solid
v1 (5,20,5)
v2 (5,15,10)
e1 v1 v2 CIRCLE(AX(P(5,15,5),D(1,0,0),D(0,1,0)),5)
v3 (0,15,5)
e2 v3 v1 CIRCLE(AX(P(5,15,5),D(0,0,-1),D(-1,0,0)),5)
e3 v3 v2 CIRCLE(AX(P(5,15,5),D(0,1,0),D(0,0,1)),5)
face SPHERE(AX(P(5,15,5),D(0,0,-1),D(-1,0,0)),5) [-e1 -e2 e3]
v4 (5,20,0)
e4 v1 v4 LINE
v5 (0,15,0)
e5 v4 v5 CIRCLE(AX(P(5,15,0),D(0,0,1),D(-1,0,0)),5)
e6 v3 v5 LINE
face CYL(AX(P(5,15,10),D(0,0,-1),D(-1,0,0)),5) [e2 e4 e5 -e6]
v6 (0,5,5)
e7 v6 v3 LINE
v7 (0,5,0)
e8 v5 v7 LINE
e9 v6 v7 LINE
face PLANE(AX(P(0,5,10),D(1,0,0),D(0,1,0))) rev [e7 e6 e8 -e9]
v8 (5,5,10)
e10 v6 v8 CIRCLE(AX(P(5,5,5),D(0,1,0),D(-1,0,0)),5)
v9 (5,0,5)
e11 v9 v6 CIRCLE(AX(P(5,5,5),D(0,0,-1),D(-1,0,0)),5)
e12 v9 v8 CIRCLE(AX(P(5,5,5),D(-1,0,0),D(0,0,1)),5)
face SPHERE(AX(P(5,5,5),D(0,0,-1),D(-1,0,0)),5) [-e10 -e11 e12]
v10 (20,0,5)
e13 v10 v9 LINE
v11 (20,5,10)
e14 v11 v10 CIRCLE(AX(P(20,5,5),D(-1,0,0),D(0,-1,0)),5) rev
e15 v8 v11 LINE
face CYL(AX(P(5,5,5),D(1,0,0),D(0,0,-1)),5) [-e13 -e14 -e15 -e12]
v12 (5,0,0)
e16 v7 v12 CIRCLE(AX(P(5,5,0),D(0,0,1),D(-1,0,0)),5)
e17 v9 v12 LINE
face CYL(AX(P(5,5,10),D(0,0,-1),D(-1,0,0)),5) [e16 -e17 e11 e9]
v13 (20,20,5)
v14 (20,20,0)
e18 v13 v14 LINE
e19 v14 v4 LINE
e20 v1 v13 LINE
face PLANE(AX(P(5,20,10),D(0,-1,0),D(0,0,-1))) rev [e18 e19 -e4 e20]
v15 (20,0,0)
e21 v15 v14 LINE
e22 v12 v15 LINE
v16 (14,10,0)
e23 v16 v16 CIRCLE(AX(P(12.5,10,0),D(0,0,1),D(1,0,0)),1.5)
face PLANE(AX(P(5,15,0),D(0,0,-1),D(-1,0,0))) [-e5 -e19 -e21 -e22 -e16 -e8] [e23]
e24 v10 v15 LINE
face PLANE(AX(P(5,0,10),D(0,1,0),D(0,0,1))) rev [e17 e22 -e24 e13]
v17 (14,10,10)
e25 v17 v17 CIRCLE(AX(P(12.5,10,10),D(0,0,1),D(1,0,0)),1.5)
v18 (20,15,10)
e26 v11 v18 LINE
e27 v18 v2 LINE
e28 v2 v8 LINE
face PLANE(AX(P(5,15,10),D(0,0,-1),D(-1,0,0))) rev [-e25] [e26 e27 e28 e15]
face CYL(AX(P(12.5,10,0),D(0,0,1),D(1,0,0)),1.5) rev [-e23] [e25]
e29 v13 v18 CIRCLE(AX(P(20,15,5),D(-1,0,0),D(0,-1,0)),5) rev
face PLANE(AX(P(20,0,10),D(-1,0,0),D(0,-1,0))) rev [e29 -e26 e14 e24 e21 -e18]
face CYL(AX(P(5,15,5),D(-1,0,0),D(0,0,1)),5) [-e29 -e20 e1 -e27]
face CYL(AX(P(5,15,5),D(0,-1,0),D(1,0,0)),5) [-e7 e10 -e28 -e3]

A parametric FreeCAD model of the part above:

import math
import FreeCAD as App
import Part
import Sketcher
from FreeCAD import Vector
Q = App.Units.Quantity


def edges_at(feature, points):
    """Names of the edges that pass closest to the given points."""
    edges = feature.Shape.Edges
    near = lambda p: min(range(len(edges)), key=lambda i: edges[i].distToShape(Part.Vertex(*p))[0])
    return sorted({f"Edge{near(p) + 1}" for p in points})

doc = App.newDocument("Part")
body = doc.addObject("PartDesign::Body", "Body")

# Sketch on XY plane
sketch1 = doc.addObject("Sketcher::SketchObject", "Sketch")
body.addObject(sketch1)
sketch1.AttachmentSupport = (doc.XY_Plane, [""])
sketch1.MapMode = "FlatFace"
sketch1.addGeometry([
    Part.LineSegment(Vector(5, 0, 0), Vector(20, 0, 0)),  # 0
    Part.LineSegment(Vector(20, 0, 0), Vector(20, 20, 0)),  # 1
    Part.LineSegment(Vector(20, 20, 0), Vector(5, 20, 0)),  # 2
    Part.ArcOfCircle(Part.Circle(Vector(5, 15, 0), Vector(0, 0, 1), 5), math.radians(90), math.radians(180)),  # 3
    Part.LineSegment(Vector(0, 15, 0), Vector(0, 5, 0)),  # 4
    Part.ArcOfCircle(Part.Circle(Vector(5, 5, 0), Vector(0, 0, 1), 5), math.radians(180), math.radians(270)),  # 5
], False)
sketch1.addConstraint([
    Sketcher.Constraint("Coincident", 0, 2, 1, 1),
    Sketcher.Constraint("Coincident", 1, 2, 2, 1),
    Sketcher.Constraint("Tangent", 2, 2, 3, 1),
    Sketcher.Constraint("Tangent", 3, 2, 4, 1),
    Sketcher.Constraint("Tangent", 4, 2, 5, 1),
    Sketcher.Constraint("Tangent", 5, 2, 0, 1),
    Sketcher.Constraint("Horizontal", 0),
    Sketcher.Constraint("Vertical", 1),
    Sketcher.Constraint("Horizontal", 2),
    Sketcher.Constraint("Vertical", 4),
    Sketcher.Constraint("Equal", 3, 5),
    Sketcher.Constraint("PointOnObject", 0, 2, -1),
    Sketcher.Constraint("PointOnObject", 3, 2, -2),
    Sketcher.Constraint("Radius", 3, Q("5 mm")),
    Sketcher.Constraint("DistanceX", 0, 1, 0, 2, Q("15 mm")),
    Sketcher.Constraint("DistanceY", 1, 1, 1, 2, Q("20 mm")),
])
pad1 = doc.addObject("PartDesign::Pad", "Pad")
body.addObject(pad1)
pad1.Profile = sketch1
pad1.Length = 10
doc.recompute()

fillet = doc.addObject("PartDesign::Fillet", "Fillet")
body.addObject(fillet)
fillet.Base = (pad1, edges_at(pad1, [
    (1.464, 18.536, 10),
    (0, 10, 10),
    (1.464, 1.464, 10),
    (12.5, 0, 10),
    (12.5, 20, 10),
]))
fillet.Radius = 5

# Sketch on XY plane
sketch2 = doc.addObject("Sketcher::SketchObject", "Sketch001")
body.addObject(sketch2)
sketch2.AttachmentSupport = (doc.XY_Plane, [""])
sketch2.MapMode = "FlatFace"
sketch2.AttachmentOffset = App.Placement(Vector(0, 0, 10), App.Rotation())
sketch2.addGeometry(Part.Circle(Vector(12.5, 10, 0), Vector(0, 0, 1), 1.5), False)
sketch2.addConstraint([
    Sketcher.Constraint("Diameter", 0, Q("3 mm")),
    Sketcher.Constraint("DistanceY", -1, 1, 0, 3, Q("10 mm")),
    Sketcher.Constraint("DistanceX", -1, 1, 0, 3, Q("12.5 mm")),
])
pocket1 = doc.addObject("PartDesign::Pocket", "Pocket")
body.addObject(pocket1)
pocket1.Profile = sketch2
pocket1.Length = 10

doc.recompute()
